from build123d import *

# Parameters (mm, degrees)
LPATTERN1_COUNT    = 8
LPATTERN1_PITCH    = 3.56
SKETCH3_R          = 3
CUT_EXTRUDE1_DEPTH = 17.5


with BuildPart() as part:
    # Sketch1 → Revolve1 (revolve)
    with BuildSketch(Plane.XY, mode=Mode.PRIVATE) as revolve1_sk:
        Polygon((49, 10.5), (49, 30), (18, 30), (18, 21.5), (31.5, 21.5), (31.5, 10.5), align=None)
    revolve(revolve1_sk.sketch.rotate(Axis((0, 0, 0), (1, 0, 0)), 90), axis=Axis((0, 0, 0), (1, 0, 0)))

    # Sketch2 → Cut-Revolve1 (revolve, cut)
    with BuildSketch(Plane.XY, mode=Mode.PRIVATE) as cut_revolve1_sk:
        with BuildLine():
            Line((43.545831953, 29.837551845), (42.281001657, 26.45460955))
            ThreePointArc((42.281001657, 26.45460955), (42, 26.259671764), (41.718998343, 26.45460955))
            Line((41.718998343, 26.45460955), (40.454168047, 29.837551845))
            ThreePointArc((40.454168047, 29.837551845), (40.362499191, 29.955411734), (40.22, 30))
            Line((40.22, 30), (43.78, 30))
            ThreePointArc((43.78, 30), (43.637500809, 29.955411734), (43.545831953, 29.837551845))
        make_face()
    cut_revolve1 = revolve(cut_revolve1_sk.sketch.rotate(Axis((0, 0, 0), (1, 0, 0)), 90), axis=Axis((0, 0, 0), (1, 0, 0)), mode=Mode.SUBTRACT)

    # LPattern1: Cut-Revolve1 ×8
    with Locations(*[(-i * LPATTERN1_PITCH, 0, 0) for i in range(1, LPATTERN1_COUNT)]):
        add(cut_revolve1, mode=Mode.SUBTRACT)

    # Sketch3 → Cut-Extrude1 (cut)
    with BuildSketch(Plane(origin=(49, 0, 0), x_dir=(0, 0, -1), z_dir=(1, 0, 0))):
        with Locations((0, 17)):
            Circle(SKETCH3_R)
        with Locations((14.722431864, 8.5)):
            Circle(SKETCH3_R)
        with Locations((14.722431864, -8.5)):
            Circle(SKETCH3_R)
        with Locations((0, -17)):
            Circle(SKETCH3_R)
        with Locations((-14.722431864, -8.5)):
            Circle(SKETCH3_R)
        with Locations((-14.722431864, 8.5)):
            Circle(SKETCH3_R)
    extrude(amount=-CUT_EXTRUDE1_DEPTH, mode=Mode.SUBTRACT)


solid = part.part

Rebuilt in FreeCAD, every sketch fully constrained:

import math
import FreeCAD as App
import Part
import Sketcher
Q = App.Units.Quantity


def add_polygon(sketch, points):
    """Adds a closed chain of lines whose ends are joined by coincident constraints."""
    first, n = sketch.GeometryCount, len(points)
    for a, b in zip(points, points[1:] + points[:1]):
        sketch.addGeometry(Part.LineSegment(App.Vector(*a, 0), App.Vector(*b, 0)), False)
    for i in range(n):
        sketch.addConstraint(Sketcher.Constraint("Coincident", first + i, 2, first + (i + 1) % n, 1))

doc = App.newDocument("Part")
body = doc.addObject("PartDesign::Body", "Body")

# Sketch on XY plane
sketch1 = body.newObject("Sketcher::SketchObject", "Sketch")
sketch1.AttachmentSupport = (doc.getObject("XY_Plane"), [""])
sketch1.MapMode = "FlatFace"
add_polygon(sketch1, [(49, 10), (49, 30), (18, 30), (18, 22), (32, 22), (32, 10)])  # lines 0-5
sketch1.addConstraint(Sketcher.Constraint("Vertical", 0))
sketch1.addConstraint(Sketcher.Constraint("Horizontal", 1))
sketch1.addConstraint(Sketcher.Constraint("Vertical", 2))
sketch1.addConstraint(Sketcher.Constraint("Horizontal", 3))
sketch1.addConstraint(Sketcher.Constraint("Vertical", 4))
sketch1.addConstraint(Sketcher.Constraint("Horizontal", 5))
sketch1.addConstraint(Sketcher.Constraint("DistanceX", 1, 2, 1, 1, 31.0))
sketch1.addConstraint(Sketcher.Constraint("DistanceY", 4, 2, 4, 1, 11.0))
sketch1.addConstraint(Sketcher.Constraint("DistanceX", 3, 1, 3, 2, 13.5))
sketch1.addConstraint(Sketcher.Constraint("DistanceY", 0, 1, 0, 2, 19.5))
sketch1.addConstraint(Sketcher.Constraint("DistanceX", -1, 1, 0, 2, 49.0))
sketch1.addConstraint(Sketcher.Constraint("DistanceY", -1, 1, 0, 2, 30.0))
revolution = body.newObject("PartDesign::Revolution", "Revolution")
revolution.Profile = sketch1
revolution.ReferenceAxis = (sketch1, ["H_Axis"])
revolution.Angle = 360

# Sketch on XY plane
sketch2 = body.newObject("Sketcher::SketchObject", "Sketch001")
sketch2.AttachmentSupport = (doc.getObject("XY_Plane"), [""])
sketch2.MapMode = "FlatFace"
sketch2.addGeometry(Part.LineSegment(App.Vector(42.28, 26.45, 0), App.Vector(43.55, 29.84, 0)), False)
sketch2.addGeometry(Part.ArcOfCircle(Part.Circle(App.Vector(43.78, 29.75, 0), App.Vector(0, 0, 1), 0.25), math.radians(90), math.radians(160)), False)
sketch2.addGeometry(Part.LineSegment(App.Vector(43.78, 30, 0), App.Vector(40.22, 30, 0)), False)
sketch2.addGeometry(Part.ArcOfCircle(Part.Circle(App.Vector(40.22, 29.75, 0), App.Vector(0, 0, 1), 0.25), math.radians(20), math.radians(90)), False)
sketch2.addGeometry(Part.LineSegment(App.Vector(40.45, 29.84, 0), App.Vector(41.72, 26.45, 0)), False)
sketch2.addGeometry(Part.ArcOfCircle(Part.Circle(App.Vector(42, 26.56, 0), App.Vector(0, 0, 1), 0.3), math.radians(-160), math.radians(-20)), False)
sketch2.addConstraint(Sketcher.Constraint("Tangent", 0, 2, 1, 2))
sketch2.addConstraint(Sketcher.Constraint("Tangent", 1, 1, 2, 1))
sketch2.addConstraint(Sketcher.Constraint("Tangent", 2, 2, 3, 2))
sketch2.addConstraint(Sketcher.Constraint("Tangent", 3, 1, 4, 1))
sketch2.addConstraint(Sketcher.Constraint("Tangent", 4, 2, 5, 1))
sketch2.addConstraint(Sketcher.Constraint("Tangent", 5, 2, 0, 1))
sketch2.addConstraint(Sketcher.Constraint("Horizontal", 2))
sketch2.addConstraint(Sketcher.Constraint("Equal", 1, 3))
sketch2.addConstraint(Sketcher.Constraint("Horizontal", 0, 2, 3, 1))
sketch2.addConstraint(Sketcher.Constraint("Radius", 5, 0.3))
sketch2.addConstraint(Sketcher.Constraint("Radius", 1, 0.25))
sketch2.addConstraint(Sketcher.Constraint("DistanceX", -1, 1, 5, 3, 42.0))
sketch2.addConstraint(Sketcher.Constraint("DistanceY", -1, 1, 1, 1, 30.0))
sketch2.addConstraint(Sketcher.Constraint("Angle", 0, Q("69.5 deg")))
sketch2.addConstraint(Sketcher.Constraint("DistanceX", 2, 2, 2, 1, 3.56))
groove = body.newObject("PartDesign::Groove", "Groove")
groove.Profile = sketch2
groove.ReferenceAxis = (sketch2, ["H_Axis"])
groove.Angle = 360
doc.recompute()

linearpattern = body.newObject("PartDesign::LinearPattern", "LinearPattern")
linearpattern.Originals = [groove]
linearpattern.Direction = (doc.getObject("X_Axis"), [""])
linearpattern.Mode = "offset"
linearpattern.Offset = 3.56
linearpattern.Occurrences = 8
linearpattern.Reversed = True
body.Tip = linearpattern

# Sketch on YZ plane
sketch3 = body.newObject("Sketcher::SketchObject", "Sketch002")
sketch3.AttachmentSupport = (doc.getObject("YZ_Plane"), [""])
sketch3.MapMode = "FlatFace"
sketch3.AttachmentOffset = App.Placement(App.Vector(0, 0, 49), App.Rotation())
sketch3.addGeometry(Part.Circle(App.Vector(17, 0, 0), App.Vector(0, 0, 1), 3), False)
sketch3.addGeometry(Part.Circle(App.Vector(8.5, -14.7, 0), App.Vector(0, 0, 1), 3), False)
sketch3.addGeometry(Part.Circle(App.Vector(-8.5, -14.7, 0), App.Vector(0, 0, 1), 3), False)
sketch3.addGeometry(Part.Circle(App.Vector(-17, 0, 0), App.Vector(0, 0, 1), 3), False)
sketch3.addGeometry(Part.Circle(App.Vector(-8.5, 14.7, 0), App.Vector(0, 0, 1), 3), False)
sketch3.addGeometry(Part.Circle(App.Vector(8.5, 14.7, 0), App.Vector(0, 0, 1), 3), False)
sketch3.addConstraint(Sketcher.Constraint("Equal", 0, 1))
sketch3.addConstraint(Sketcher.Constraint("Equal", 1, 2))
sketch3.addConstraint(Sketcher.Constraint("Equal", 2, 3))
sketch3.addConstraint(Sketcher.Constraint("Equal", 3, 4))
sketch3.addConstraint(Sketcher.Constraint("Equal", 4, 5))
sketch3.addConstraint(Sketcher.Constraint("Symmetric", 0, 3, 3, 3, -1, 1))
sketch3.addConstraint(Sketcher.Constraint("Symmetric", 1, 3, 4, 3, -1, 1))
sketch3.addConstraint(Sketcher.Constraint("Symmetric", 2, 3, 5, 3, -1, 1))
sketch3.addConstraint(Sketcher.Constraint("Symmetric", 1, 3, 2, 3, -2))
sketch3.addConstraint(Sketcher.Constraint("PointOnObject", 0, 3, -1))
sketch3.addConstraint(Sketcher.Constraint("Diameter", 0, 6.0))
sketch3.addConstraint(Sketcher.Constraint("DistanceX", -1, 1, 0, 3, 17.0))
sketch3.addConstraint(Sketcher.Constraint("DistanceX", 2, 3, 1, 3, 17.0))
sketch3.addConstraint(Sketcher.Constraint("DistanceY", 1, 3, -1, 1, 14.722432))
pocket1 = body.newObject("PartDesign::Pocket", "Pocket")
pocket1.Profile = sketch3
pocket1.Length = 17.5

doc.recompute()
